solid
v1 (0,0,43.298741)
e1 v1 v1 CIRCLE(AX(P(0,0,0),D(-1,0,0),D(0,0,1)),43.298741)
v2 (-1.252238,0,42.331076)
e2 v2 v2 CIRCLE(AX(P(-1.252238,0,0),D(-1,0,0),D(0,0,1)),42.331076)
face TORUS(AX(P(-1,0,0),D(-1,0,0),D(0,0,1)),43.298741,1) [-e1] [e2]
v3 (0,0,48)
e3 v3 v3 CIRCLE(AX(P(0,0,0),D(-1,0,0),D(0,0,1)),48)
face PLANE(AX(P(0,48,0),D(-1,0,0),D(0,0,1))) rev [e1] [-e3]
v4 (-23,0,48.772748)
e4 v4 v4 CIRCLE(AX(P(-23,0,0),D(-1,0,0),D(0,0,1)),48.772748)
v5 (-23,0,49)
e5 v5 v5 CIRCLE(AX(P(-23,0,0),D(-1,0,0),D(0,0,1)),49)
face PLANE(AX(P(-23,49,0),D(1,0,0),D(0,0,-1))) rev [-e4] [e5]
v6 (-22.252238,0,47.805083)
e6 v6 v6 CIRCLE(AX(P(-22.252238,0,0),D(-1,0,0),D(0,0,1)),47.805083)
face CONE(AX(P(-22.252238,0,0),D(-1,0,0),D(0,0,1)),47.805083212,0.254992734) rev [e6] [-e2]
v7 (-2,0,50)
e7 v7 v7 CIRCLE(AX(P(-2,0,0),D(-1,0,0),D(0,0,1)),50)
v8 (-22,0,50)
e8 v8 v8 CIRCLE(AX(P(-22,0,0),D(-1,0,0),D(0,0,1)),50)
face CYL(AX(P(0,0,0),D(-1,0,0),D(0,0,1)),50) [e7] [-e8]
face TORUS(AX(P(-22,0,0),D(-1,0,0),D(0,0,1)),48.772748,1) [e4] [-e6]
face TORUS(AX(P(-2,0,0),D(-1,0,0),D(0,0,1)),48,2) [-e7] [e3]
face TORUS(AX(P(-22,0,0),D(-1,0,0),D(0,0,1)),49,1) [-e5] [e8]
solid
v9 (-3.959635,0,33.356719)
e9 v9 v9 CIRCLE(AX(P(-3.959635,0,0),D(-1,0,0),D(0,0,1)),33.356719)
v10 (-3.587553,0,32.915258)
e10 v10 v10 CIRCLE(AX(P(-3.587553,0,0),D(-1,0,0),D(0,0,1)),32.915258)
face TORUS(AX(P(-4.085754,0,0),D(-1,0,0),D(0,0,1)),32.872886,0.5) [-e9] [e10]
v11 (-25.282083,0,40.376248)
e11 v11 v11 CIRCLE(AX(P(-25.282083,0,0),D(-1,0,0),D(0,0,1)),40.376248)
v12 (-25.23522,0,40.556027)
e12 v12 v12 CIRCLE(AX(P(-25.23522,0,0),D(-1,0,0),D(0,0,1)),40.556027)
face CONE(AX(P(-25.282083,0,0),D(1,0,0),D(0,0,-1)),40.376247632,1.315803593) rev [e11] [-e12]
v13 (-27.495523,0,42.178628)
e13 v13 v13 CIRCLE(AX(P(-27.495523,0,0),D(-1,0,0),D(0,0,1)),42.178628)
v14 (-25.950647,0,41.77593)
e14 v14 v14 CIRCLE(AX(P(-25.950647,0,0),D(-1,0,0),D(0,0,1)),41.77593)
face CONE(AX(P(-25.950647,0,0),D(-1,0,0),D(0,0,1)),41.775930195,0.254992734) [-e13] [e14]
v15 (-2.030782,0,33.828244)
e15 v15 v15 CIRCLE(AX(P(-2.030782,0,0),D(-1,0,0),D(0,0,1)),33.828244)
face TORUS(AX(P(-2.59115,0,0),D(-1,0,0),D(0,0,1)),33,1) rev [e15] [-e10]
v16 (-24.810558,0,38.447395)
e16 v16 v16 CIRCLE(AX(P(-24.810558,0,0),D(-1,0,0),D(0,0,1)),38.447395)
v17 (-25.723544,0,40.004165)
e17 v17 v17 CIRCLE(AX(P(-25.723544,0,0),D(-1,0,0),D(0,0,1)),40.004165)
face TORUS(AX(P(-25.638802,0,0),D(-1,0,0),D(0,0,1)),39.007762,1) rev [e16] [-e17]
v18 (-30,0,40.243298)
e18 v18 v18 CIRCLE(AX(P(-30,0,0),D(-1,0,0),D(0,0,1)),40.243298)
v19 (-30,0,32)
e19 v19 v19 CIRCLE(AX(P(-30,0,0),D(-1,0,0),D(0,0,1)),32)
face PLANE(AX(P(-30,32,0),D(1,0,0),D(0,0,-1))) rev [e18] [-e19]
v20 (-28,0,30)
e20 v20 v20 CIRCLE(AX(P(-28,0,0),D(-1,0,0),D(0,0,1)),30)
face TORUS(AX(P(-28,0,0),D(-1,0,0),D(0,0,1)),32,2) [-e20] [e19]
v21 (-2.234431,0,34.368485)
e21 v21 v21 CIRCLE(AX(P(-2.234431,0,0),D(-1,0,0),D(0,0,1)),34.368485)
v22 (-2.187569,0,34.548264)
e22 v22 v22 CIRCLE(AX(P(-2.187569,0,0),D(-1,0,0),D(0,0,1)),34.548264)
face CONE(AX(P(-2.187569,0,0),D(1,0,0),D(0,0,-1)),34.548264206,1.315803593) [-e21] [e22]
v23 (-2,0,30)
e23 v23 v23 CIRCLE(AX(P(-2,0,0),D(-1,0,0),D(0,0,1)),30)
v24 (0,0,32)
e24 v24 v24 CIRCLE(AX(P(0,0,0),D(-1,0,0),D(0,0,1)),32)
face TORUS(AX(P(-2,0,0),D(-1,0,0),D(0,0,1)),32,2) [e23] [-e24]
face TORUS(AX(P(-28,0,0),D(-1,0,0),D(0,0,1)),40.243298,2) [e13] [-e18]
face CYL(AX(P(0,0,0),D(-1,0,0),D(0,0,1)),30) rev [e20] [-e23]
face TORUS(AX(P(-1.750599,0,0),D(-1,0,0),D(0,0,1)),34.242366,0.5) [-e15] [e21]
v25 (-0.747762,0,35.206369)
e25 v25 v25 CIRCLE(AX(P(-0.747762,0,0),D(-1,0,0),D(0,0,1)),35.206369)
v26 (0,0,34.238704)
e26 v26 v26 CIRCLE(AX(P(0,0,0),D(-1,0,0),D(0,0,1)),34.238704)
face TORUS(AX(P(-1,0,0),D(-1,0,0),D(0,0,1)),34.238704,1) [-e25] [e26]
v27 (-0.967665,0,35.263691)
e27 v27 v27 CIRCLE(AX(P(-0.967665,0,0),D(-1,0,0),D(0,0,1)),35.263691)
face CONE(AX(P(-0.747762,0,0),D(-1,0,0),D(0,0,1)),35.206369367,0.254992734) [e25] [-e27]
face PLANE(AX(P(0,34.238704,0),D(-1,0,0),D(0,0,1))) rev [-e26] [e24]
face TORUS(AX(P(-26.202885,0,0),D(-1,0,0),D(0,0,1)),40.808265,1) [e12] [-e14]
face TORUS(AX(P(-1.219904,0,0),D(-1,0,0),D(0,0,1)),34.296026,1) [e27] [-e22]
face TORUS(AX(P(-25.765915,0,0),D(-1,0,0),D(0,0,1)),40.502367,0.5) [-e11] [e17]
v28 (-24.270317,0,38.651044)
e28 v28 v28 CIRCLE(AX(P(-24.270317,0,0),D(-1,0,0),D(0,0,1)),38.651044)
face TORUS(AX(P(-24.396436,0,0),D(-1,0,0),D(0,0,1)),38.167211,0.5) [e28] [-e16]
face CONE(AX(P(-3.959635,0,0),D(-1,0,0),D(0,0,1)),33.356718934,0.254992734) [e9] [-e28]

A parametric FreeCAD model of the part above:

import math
import FreeCAD as App
import Part
import Sketcher
Q = App.Units.Quantity

doc = App.newDocument("Part")
body = doc.addObject("PartDesign::Body", "Body")
body.AllowCompound = True

# Sketch on XY plane
sketch1 = body.newObject("Sketcher::SketchObject", "Sketch")
sketch1.AttachmentSupport = (doc.getObject("XY_Plane"), [""])
sketch1.MapMode = "FlatFace"
sketch1.addGeometry(Part.LineSegment(App.Vector(0, 43.3, 0), App.Vector(0, 48, 0)), False)
sketch1.addGeometry(Part.ArcOfCircle(Part.Circle(App.Vector(-2, 48, 0), App.Vector(0, 0, 1), 2), math.radians(0), math.radians(90)), False)
sketch1.addGeometry(Part.LineSegment(App.Vector(-2, 50, 0), App.Vector(-22, 50, 0)), False)
sketch1.addGeometry(Part.ArcOfCircle(Part.Circle(App.Vector(-22, 49, 0), App.Vector(0, 0, 1), 1), math.radians(90), math.radians(180)), False)
sketch1.addGeometry(Part.LineSegment(App.Vector(-23, 49, 0), App.Vector(-23, 48.77, 0)), False)
sketch1.addGeometry(Part.ArcOfCircle(Part.Circle(App.Vector(-22, 48.77, 0), App.Vector(0, 0, 1), 1), math.radians(-180), math.radians(-105)), False)
sketch1.addGeometry(Part.LineSegment(App.Vector(-22.25, 47.81, 0), App.Vector(-1.25, 42.33, 0)), False)
sketch1.addGeometry(Part.ArcOfCircle(Part.Circle(App.Vector(-1, 43.3, 0), App.Vector(0, 0, 1), 1), math.radians(-105), math.radians(0)), False)
sketch1.addGeometry(Part.LineSegment(App.Vector(-3.96, 33.36, 0), App.Vector(-24.27, 38.65, 0)), False)
sketch1.addGeometry(Part.ArcOfCircle(Part.Circle(App.Vector(-24.4, 38.17, 0), App.Vector(0, 0, 1), 0.5), math.radians(75), math.radians(146)), False)
sketch1.addGeometry(Part.ArcOfCircle(Part.Circle(App.Vector(-25.64, 39.01, 0), App.Vector(0, 0, 1), 1), math.radians(95), math.radians(326)), False)
sketch1.addGeometry(Part.ArcOfCircle(Part.Circle(App.Vector(-25.77, 40.5, 0), App.Vector(0, 0, 1), 0.5), math.radians(-85), math.radians(-15)), False)
sketch1.addGeometry(Part.LineSegment(App.Vector(-25.28, 40.38, 0), App.Vector(-25.24, 40.56, 0)), False)
sketch1.addGeometry(Part.ArcOfCircle(Part.Circle(App.Vector(-26.2, 40.81, 0), App.Vector(0, 0, 1), 1), math.radians(-15), math.radians(75)), False)
sketch1.addGeometry(Part.LineSegment(App.Vector(-25.95, 41.78, 0), App.Vector(-27.5, 42.18, 0)), False)
sketch1.addGeometry(Part.ArcOfCircle(Part.Circle(App.Vector(-28, 40.24, 0), App.Vector(0, 0, 1), 2), math.radians(75), math.radians(180)), False)
sketch1.addGeometry(Part.LineSegment(App.Vector(-30, 40.24, 0), App.Vector(-30, 32, 0)), False)
sketch1.addGeometry(Part.ArcOfCircle(Part.Circle(App.Vector(-28, 32, 0), App.Vector(0, 0, 1), 2), math.radians(-180), math.radians(-90)), False)
sketch1.addGeometry(Part.LineSegment(App.Vector(-28, 30, 0), App.Vector(-2, 30, 0)), False)
sketch1.addGeometry(Part.ArcOfCircle(Part.Circle(App.Vector(-2, 32, 0), App.Vector(0, 0, 1), 2), math.radians(-90), math.radians(0)), False)
sketch1.addGeometry(Part.LineSegment(App.Vector(0, 32, 0), App.Vector(0, 34.24, 0)), False)
sketch1.addGeometry(Part.ArcOfCircle(Part.Circle(App.Vector(-1, 34.24, 0), App.Vector(0, 0, 1), 1), math.radians(0), math.radians(75)), False)
sketch1.addGeometry(Part.LineSegment(App.Vector(-0.75, 35.21, 0), App.Vector(-0.97, 35.26, 0)), False)
sketch1.addGeometry(Part.ArcOfCircle(Part.Circle(App.Vector(-1.22, 34.3, 0), App.Vector(0, 0, 1), 1), math.radians(75), math.radians(165)), False)
sketch1.addGeometry(Part.LineSegment(App.Vector(-2.19, 34.55, 0), App.Vector(-2.23, 34.37, 0)), False)
sketch1.addGeometry(Part.ArcOfCircle(Part.Circle(App.Vector(-1.75, 34.24, 0), App.Vector(0, 0, 1), 0.5), math.radians(165), math.radians(236)), False)
sketch1.addGeometry(Part.ArcOfCircle(Part.Circle(App.Vector(-2.59, 33, 0), App.Vector(0, 0, 1), 1), math.radians(-175), math.radians(56)), False)
sketch1.addGeometry(Part.ArcOfCircle(Part.Circle(App.Vector(-4.09, 32.87, 0), App.Vector(0, 0, 1), 0.5), math.radians(5), math.radians(75)), False)
sketch1.addConstraint(Sketcher.Constraint("Tangent", 0, 2, 1, 1))
sketch1.addConstraint(Sketcher.Constraint("Tangent", 1, 2, 2, 1))
sketch1.addConstraint(Sketcher.Constraint("Tangent", 2, 2, 3, 1))
sketch1.addConstraint(Sketcher.Constraint("Tangent", 3, 2, 4, 1))
sketch1.addConstraint(Sketcher.Constraint("Tangent", 4, 2, 5, 1))
sketch1.addConstraint(Sketcher.Constraint("Tangent", 5, 2, 6, 1))
sketch1.addConstraint(Sketcher.Constraint("Tangent", 6, 2, 7, 1))
sketch1.addConstraint(Sketcher.Constraint("Tangent", 7, 2, 0, 1))
sketch1.addConstraint(Sketcher.Constraint("Tangent", 8, 2, 9, 1))
sketch1.addConstraint(Sketcher.Constraint("Tangent", 9, 2, 10, 2))
sketch1.addConstraint(Sketcher.Constraint("Tangent", 10, 1, 11, 1))
sketch1.addConstraint(Sketcher.Constraint("Tangent", 11, 2, 12, 1))
sketch1.addConstraint(Sketcher.Constraint("Tangent", 12, 2, 13, 1))
sketch1.addConstraint(Sketcher.Constraint("Tangent", 13, 2, 14, 1))
sketch1.addConstraint(Sketcher.Constraint("Tangent", 14, 2, 15, 1))
sketch1.addConstraint(Sketcher.Constraint("Tangent", 15, 2, 16, 1))
sketch1.addConstraint(Sketcher.Constraint("Tangent", 16, 2, 17, 1))
sketch1.addConstraint(Sketcher.Constraint("Tangent", 17, 2, 18, 1))
sketch1.addConstraint(Sketcher.Constraint("Tangent", 18, 2, 19, 1))
sketch1.addConstraint(Sketcher.Constraint("Tangent", 19, 2, 20, 1))
sketch1.addConstraint(Sketcher.Constraint("Tangent", 20, 2, 21, 1))
sketch1.addConstraint(Sketcher.Constraint("Tangent", 21, 2, 22, 1))
sketch1.addConstraint(Sketcher.Constraint("Tangent", 22, 2, 23, 1))
sketch1.addConstraint(Sketcher.Constraint("Tangent", 23, 2, 24, 1))
sketch1.addConstraint(Sketcher.Constraint("Tangent", 24, 2, 25, 1))
sketch1.addConstraint(Sketcher.Constraint("Tangent", 25, 2, 26, 2))
sketch1.addConstraint(Sketcher.Constraint("Tangent", 26, 1, 27, 1))
sketch1.addConstraint(Sketcher.Constraint("Tangent", 27, 2, 8, 1))
sketch1.addConstraint(Sketcher.Constraint("Vertical", 0))
sketch1.addConstraint(Sketcher.Constraint("Horizontal", 2))
sketch1.addConstraint(Sketcher.Constraint("Vertical", 4))
sketch1.addConstraint(Sketcher.Constraint("Vertical", 16))
sketch1.addConstraint(Sketcher.Constraint("Horizontal", 18))
sketch1.addConstraint(Sketcher.Constraint("Vertical", 20))
sketch1.addConstraint(Sketcher.Constraint("Equal", 3, 5))
sketch1.addConstraint(Sketcher.Constraint("Equal", 5, 7))
sketch1.addConstraint(Sketcher.Constraint("Equal", 7, 10))
sketch1.addConstraint(Sketcher.Constraint("Equal", 9, 11))
sketch1.addConstraint(Sketcher.Constraint("Equal", 10, 13))
sketch1.addConstraint(Sketcher.Constraint("Equal", 1, 15))
sketch1.addConstraint(Sketcher.Constraint("Equal", 15, 17))
sketch1.addConstraint(Sketcher.Constraint("Equal", 17, 19))
sketch1.addConstraint(Sketcher.Constraint("Equal", 13, 21))
sketch1.addConstraint(Sketcher.Constraint("Equal", 21, 23))
sketch1.addConstraint(Sketcher.Constraint("Equal", 11, 25))
sketch1.addConstraint(Sketcher.Constraint("Equal", 23, 26))
sketch1.addConstraint(Sketcher.Constraint("Equal", 25, 27))
sketch1.addConstraint(Sketcher.Constraint("PointOnObject", 0, 2, -2))
sketch1.addConstraint(Sketcher.Constraint("PointOnObject", 19, 2, -2))
sketch1.addConstraint(Sketcher.Constraint("Parallel", 6, 8))
sketch1.addConstraint(Sketcher.Constraint("Perpendicular", 8, 12))
sketch1.addConstraint(Sketcher.Constraint("Perpendicular", 12, 14))
sketch1.addConstraint(Sketcher.Constraint("Parallel", 14, 22))
sketch1.addConstraint(Sketcher.Constraint("Perpendicular", 22, 24))
sketch1.addConstraint(Sketcher.Constraint("Equal", 12, 24))
sketch1.addConstraint(Sketcher.Constraint("Radius", 1, 2.0))
sketch1.addConstraint(Sketcher.Constraint("Radius", 3, 1.0))
sketch1.addConstraint(Sketcher.Constraint("Radius", 9, 0.5))
sketch1.addConstraint(Sketcher.Constraint("DistanceX", 2, 2, 2, 1, 20.0))
sketch1.addConstraint(Sketcher.Constraint("DistanceX", 18, 1, 18, 2, 26.0))
sketch1.addConstraint(Sketcher.Constraint("DistanceY", -1, 1, 1, 3, 48.0))
sketch1.addConstraint(Sketcher.Constraint("DistanceY", -1, 1, 17, 3, 32.0))
sketch1.addConstraint(Sketcher.Constraint("DistanceY", -1, 1, 26, 3, 33.0))
sketch1.addConstraint(Sketcher.Constraint("Angle", 6, Q("-14.610007 deg")))
sketch1.addConstraint(Sketcher.Constraint("DistanceY", 16, 2, 16, 1, 8.243298))
sketch1.addConstraint(Sketcher.Constraint("Distance", 14, 1.596499))
sketch1.addConstraint(Sketcher.Constraint("DistanceY", 0, 1, 0, 2, 4.701259))
sketch1.addConstraint(Sketcher.Constraint("DistanceX", 10, 3, -1, 1, 25.638802))
sketch1.addConstraint(Sketcher.Constraint("DistanceX", 25, 3, -1, 1, 1.750599))
sketch1.addConstraint(Sketcher.Constraint("DistanceY", 11, 3, 13, 3, 0.305898))
sketch1.addConstraint(Sketcher.Constraint("DistanceX", 11, 3, 8, 2, 1.495599))
sketch1.addConstraint(Sketcher.Constraint("Distance", 8, 20.98937))
revolution = body.newObject("PartDesign::Revolution", "Revolution")
revolution.Profile = sketch1
revolution.ReferenceAxis = (sketch1, ["H_Axis"])
revolution.Angle = 360

doc.recompute()
